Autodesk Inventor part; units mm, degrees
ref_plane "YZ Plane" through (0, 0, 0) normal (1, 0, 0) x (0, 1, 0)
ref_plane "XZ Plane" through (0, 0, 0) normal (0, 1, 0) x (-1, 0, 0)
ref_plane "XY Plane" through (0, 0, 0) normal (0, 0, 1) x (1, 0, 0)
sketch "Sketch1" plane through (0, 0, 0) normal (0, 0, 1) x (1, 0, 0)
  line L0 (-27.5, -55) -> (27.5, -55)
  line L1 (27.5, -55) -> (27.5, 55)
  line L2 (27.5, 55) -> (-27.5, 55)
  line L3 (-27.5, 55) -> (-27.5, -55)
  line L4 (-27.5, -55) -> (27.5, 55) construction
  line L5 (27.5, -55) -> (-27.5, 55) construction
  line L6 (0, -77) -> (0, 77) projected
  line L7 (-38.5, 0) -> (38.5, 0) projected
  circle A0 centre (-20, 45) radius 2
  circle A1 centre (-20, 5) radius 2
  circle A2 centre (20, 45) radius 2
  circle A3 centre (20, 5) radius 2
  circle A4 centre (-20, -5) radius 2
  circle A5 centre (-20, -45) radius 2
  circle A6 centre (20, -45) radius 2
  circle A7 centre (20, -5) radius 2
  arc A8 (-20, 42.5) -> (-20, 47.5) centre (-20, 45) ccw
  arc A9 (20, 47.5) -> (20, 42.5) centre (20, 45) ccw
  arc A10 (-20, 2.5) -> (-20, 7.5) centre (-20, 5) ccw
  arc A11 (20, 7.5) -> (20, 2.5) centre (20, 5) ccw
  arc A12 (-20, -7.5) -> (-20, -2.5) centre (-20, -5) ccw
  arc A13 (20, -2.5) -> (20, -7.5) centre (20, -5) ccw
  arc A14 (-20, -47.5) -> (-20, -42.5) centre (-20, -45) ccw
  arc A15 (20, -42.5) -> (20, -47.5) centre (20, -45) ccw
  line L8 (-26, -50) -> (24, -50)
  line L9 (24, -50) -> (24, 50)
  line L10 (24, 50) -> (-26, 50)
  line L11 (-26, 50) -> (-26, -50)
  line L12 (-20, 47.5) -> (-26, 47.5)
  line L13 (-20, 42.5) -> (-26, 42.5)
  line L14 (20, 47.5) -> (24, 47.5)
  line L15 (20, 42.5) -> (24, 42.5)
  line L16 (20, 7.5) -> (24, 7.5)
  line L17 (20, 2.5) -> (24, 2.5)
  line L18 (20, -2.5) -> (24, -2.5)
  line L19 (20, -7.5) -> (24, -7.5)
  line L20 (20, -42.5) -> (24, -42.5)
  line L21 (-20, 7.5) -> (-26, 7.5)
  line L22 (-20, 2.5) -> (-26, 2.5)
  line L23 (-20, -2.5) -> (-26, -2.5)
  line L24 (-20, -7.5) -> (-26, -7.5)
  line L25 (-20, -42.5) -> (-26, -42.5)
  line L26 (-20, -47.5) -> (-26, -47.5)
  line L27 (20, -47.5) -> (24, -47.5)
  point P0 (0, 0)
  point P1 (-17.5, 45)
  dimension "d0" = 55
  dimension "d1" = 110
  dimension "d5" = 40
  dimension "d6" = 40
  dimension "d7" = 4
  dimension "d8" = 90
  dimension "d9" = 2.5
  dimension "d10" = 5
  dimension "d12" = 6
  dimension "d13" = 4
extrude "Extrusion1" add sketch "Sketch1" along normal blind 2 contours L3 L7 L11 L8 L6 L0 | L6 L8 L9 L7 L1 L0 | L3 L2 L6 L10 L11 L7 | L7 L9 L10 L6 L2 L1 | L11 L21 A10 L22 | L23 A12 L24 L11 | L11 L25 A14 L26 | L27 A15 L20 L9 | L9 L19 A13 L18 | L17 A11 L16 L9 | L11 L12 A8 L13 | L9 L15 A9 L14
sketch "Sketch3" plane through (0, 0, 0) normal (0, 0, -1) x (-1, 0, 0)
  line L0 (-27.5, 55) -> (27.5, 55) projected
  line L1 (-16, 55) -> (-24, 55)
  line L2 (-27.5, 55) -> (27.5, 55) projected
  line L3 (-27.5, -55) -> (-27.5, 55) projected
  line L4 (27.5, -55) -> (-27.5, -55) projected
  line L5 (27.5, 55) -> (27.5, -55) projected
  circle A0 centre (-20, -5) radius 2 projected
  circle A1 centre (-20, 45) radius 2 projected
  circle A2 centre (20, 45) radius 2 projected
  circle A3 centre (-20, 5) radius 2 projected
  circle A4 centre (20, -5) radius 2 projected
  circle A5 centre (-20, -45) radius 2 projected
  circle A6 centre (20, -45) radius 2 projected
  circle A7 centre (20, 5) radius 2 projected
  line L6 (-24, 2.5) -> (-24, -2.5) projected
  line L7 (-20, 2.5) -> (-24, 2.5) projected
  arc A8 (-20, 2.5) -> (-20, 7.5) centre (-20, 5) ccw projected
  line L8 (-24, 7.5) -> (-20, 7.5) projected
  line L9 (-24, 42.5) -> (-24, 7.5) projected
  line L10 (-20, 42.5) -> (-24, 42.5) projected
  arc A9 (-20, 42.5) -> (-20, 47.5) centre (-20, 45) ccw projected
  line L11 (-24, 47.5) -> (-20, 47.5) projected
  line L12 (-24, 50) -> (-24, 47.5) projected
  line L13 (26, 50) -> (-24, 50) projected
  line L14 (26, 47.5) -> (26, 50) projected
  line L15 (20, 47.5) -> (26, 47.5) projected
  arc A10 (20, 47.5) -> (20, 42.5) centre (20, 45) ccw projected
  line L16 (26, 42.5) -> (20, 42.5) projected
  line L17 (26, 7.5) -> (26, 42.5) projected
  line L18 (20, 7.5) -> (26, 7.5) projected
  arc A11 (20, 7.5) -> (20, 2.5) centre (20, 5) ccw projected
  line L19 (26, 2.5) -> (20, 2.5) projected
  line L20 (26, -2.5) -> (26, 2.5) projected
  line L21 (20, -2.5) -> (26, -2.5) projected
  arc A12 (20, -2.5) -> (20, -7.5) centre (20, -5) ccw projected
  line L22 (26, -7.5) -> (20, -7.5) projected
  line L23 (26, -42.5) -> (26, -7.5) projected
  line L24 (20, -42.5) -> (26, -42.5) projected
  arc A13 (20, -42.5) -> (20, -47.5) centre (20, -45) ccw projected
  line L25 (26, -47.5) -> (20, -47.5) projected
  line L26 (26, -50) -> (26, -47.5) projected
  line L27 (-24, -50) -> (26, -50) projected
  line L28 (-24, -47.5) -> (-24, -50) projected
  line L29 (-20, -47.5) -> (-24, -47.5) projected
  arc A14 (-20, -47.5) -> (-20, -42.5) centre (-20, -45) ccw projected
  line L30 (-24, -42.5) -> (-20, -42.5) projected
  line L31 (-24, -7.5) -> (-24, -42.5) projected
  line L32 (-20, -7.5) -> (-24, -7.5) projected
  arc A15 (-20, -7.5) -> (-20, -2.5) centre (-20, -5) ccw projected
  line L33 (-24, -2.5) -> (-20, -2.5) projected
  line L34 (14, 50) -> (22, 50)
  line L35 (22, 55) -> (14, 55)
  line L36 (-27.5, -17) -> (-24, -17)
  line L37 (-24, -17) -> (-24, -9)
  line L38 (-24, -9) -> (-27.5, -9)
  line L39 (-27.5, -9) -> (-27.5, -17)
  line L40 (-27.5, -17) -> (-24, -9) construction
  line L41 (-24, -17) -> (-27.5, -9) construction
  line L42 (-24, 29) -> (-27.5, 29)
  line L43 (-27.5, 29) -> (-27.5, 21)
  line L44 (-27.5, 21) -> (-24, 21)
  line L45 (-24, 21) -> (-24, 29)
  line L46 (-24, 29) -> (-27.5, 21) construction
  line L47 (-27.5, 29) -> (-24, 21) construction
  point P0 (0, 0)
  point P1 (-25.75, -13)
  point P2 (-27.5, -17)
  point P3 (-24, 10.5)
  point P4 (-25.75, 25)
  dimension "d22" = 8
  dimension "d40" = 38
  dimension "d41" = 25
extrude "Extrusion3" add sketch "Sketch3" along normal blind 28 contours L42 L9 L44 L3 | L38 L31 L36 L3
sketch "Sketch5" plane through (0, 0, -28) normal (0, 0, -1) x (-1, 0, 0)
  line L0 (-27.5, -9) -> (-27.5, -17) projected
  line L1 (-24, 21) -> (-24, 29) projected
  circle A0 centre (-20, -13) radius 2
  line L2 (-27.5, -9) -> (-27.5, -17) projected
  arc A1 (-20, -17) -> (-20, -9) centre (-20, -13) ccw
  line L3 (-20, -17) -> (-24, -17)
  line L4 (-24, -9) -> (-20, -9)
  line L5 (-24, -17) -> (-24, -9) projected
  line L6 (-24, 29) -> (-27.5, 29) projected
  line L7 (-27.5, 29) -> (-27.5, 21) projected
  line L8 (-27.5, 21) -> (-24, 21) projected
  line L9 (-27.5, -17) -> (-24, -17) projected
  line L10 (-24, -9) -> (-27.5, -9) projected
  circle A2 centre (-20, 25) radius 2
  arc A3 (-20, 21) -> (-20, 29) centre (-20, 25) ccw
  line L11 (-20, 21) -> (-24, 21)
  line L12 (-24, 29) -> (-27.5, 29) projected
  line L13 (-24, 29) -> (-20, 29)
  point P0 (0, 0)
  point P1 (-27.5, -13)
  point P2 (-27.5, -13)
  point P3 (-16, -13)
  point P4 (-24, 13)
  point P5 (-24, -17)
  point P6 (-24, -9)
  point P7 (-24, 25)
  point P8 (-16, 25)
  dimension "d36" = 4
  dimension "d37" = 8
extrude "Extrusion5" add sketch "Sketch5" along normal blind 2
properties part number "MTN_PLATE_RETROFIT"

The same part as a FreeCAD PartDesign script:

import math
import FreeCAD as App
import Part
import Sketcher
from FreeCAD import Vector
Q = App.Units.Quantity


def add_polygon(sketch, points):
    """Adds a closed chain of lines whose ends are joined by coincident constraints."""
    first, n = sketch.GeometryCount, len(points)
    for a, b in zip(points, points[1:] + points[:1]):
        sketch.addGeometry(Part.LineSegment(App.Vector(*a, 0), App.Vector(*b, 0)), False)
    for i in range(n):
        sketch.addConstraint(Sketcher.Constraint("Coincident", first + i, 2, first + (i + 1) % n, 1))

doc = App.newDocument("Part")
params = doc.addObject("Spreadsheet::Sheet", "Params")
for row, (alias, value) in enumerate([
    ("sketch1_diameter", "4 mm"),
    ("sketch1_radius", "2.5 mm"),
    ("sketch1_width", "55 mm"),
    ("sketch1_width2", "6 mm"),
    ("sketch1_width3", "4 mm"),
    ("pad1_length", "2 mm"),
    ("sketch2_height", "8 mm"),
    ("sketch2_width", "3.5 mm"),
    ("pad2_length", "28 mm"),
    ("sketch3_diameter", "4 mm"),
    ("sketch3_radius", "4 mm"),
    ("sketch3_width", "7.5 mm"),
    ("pad3_length", "2 mm"),
], start=1):
    params.set(f"A{row}", alias)
    params.set(f"B{row}", "=" + value)
    params.setAlias(f"B{row}", alias)

body = doc.addObject("PartDesign::Body", "Body")

# Sketch on XY plane
sketch1 = body.newObject("Sketcher::SketchObject", "Sketch")
sketch1.AttachmentSupport = (doc.getObject("XY_Plane"), [""])
sketch1.MapMode = "FlatFace"
add_polygon(sketch1, [(-27.5, -55), (27.5, -55), (27.5, 55), (-27.5, 55)])  # lines 0-3
sketch1.addGeometry(Part.LineSegment(Vector(-26, -2.5, 0), Vector(-26, 2.5, 0)), False)  # 4
sketch1.addGeometry(Part.LineSegment(Vector(-26, 2.5, 0), Vector(-20, 2.5, 0)), False)  # 5
sketch1.addGeometry(Part.ArcOfCircle(Part.Circle(Vector(-20, 5, 0), Vector(0, 0, 1), 2.5), math.radians(-90), math.radians(90)), False)  # 6
sketch1.addGeometry(Part.LineSegment(Vector(-20, 7.5, 0), Vector(-26, 7.5, 0)), False)  # 7
sketch1.addGeometry(Part.LineSegment(Vector(-26, 7.5, 0), Vector(-26, 42.5, 0)), False)  # 8
sketch1.addGeometry(Part.LineSegment(Vector(-26, 42.5, 0), Vector(-20, 42.5, 0)), False)  # 9
sketch1.addGeometry(Part.ArcOfCircle(Part.Circle(Vector(-20, 45, 0), Vector(0, 0, 1), 2.5), math.radians(-90), math.radians(90)), False)  # 10
sketch1.addGeometry(Part.LineSegment(Vector(-20, 47.5, 0), Vector(-26, 47.5, 0)), False)  # 11
sketch1.addGeometry(Part.LineSegment(Vector(-26, 47.5, 0), Vector(-26, 50, 0)), False)  # 12
sketch1.addGeometry(Part.LineSegment(Vector(-26, 50, 0), Vector(24, 50, 0)), False)  # 13
sketch1.addGeometry(Part.LineSegment(Vector(24, 50, 0), Vector(24, 47.5, 0)), False)  # 14
sketch1.addGeometry(Part.LineSegment(Vector(24, 47.5, 0), Vector(20, 47.5, 0)), False)  # 15
sketch1.addGeometry(Part.ArcOfCircle(Part.Circle(Vector(20, 45, 0), Vector(0, 0, 1), 2.5), math.radians(90), math.radians(270)), False)  # 16
sketch1.addGeometry(Part.LineSegment(Vector(20, 42.5, 0), Vector(24, 42.5, 0)), False)  # 17
sketch1.addGeometry(Part.LineSegment(Vector(24, 42.5, 0), Vector(24, 7.5, 0)), False)  # 18
sketch1.addGeometry(Part.LineSegment(Vector(24, 7.5, 0), Vector(20, 7.5, 0)), False)  # 19
sketch1.addGeometry(Part.ArcOfCircle(Part.Circle(Vector(20, 5, 0), Vector(0, 0, 1), 2.5), math.radians(90), math.radians(270)), False)  # 20
sketch1.addGeometry(Part.LineSegment(Vector(20, 2.5, 0), Vector(24, 2.5, 0)), False)  # 21
sketch1.addGeometry(Part.LineSegment(Vector(24, 2.5, 0), Vector(24, -2.5, 0)), False)  # 22
sketch1.addGeometry(Part.LineSegment(Vector(24, -2.5, 0), Vector(20, -2.5, 0)), False)  # 23
sketch1.addGeometry(Part.ArcOfCircle(Part.Circle(Vector(20, -5, 0), Vector(0, 0, 1), 2.5), math.radians(90), math.radians(270)), False)  # 24
sketch1.addGeometry(Part.LineSegment(Vector(20, -7.5, 0), Vector(24, -7.5, 0)), False)  # 25
sketch1.addGeometry(Part.LineSegment(Vector(24, -7.5, 0), Vector(24, -42.5, 0)), False)  # 26
sketch1.addGeometry(Part.LineSegment(Vector(24, -42.5, 0), Vector(20, -42.5, 0)), False)  # 27
sketch1.addGeometry(Part.ArcOfCircle(Part.Circle(Vector(20, -45, 0), Vector(0, 0, 1), 2.5), math.radians(90), math.radians(270)), False)  # 28
sketch1.addGeometry(Part.LineSegment(Vector(20, -47.5, 0), Vector(24, -47.5, 0)), False)  # 29
sketch1.addGeometry(Part.LineSegment(Vector(24, -47.5, 0), Vector(24, -50, 0)), False)  # 30
sketch1.addGeometry(Part.LineSegment(Vector(24, -50, 0), Vector(-26, -50, 0)), False)  # 31
sketch1.addGeometry(Part.LineSegment(Vector(-26, -50, 0), Vector(-26, -47.5, 0)), False)  # 32
sketch1.addGeometry(Part.LineSegment(Vector(-26, -47.5, 0), Vector(-20, -47.5, 0)), False)  # 33
sketch1.addGeometry(Part.ArcOfCircle(Part.Circle(Vector(-20, -45, 0), Vector(0, 0, 1), 2.5), math.radians(-90), math.radians(90)), False)  # 34
sketch1.addGeometry(Part.LineSegment(Vector(-20, -42.5, 0), Vector(-26, -42.5, 0)), False)  # 35
sketch1.addGeometry(Part.LineSegment(Vector(-26, -42.5, 0), Vector(-26, -7.5, 0)), False)  # 36
sketch1.addGeometry(Part.LineSegment(Vector(-26, -7.5, 0), Vector(-20, -7.5, 0)), False)  # 37
sketch1.addGeometry(Part.ArcOfCircle(Part.Circle(Vector(-20, -5, 0), Vector(0, 0, 1), 2.5), math.radians(-90), math.radians(90)), False)  # 38
sketch1.addGeometry(Part.LineSegment(Vector(-20, -2.5, 0), Vector(-26, -2.5, 0)), False)  # 39
sketch1.addGeometry(Part.Circle(Vector(-20, -5, 0), Vector(0, 0, 1), 2), False)  # 40
sketch1.addGeometry(Part.Circle(Vector(-20, -45, 0), Vector(0, 0, 1), 2), False)  # 41
sketch1.addGeometry(Part.Circle(Vector(-20, 45, 0), Vector(0, 0, 1), 2), False)  # 42
sketch1.addGeometry(Part.Circle(Vector(-20, 5, 0), Vector(0, 0, 1), 2), False)  # 43
sketch1.addGeometry(Part.Circle(Vector(20, -45, 0), Vector(0, 0, 1), 2), False)  # 44
sketch1.addGeometry(Part.Circle(Vector(20, -5, 0), Vector(0, 0, 1), 2), False)  # 45
sketch1.addGeometry(Part.Circle(Vector(20, 5, 0), Vector(0, 0, 1), 2), False)  # 46
sketch1.addGeometry(Part.Circle(Vector(20, 45, 0), Vector(0, 0, 1), 2), False)  # 47
sketch1.addConstraint([
    Sketcher.Constraint("Coincident", 4, 2, 5, 1),
    Sketcher.Constraint("Tangent", 5, 2, 6, 1),
    Sketcher.Constraint("Tangent", 6, 2, 7, 1),
    Sketcher.Constraint("Coincident", 7, 2, 8, 1),
    Sketcher.Constraint("Coincident", 8, 2, 9, 1),
    Sketcher.Constraint("Tangent", 9, 2, 10, 1),
    Sketcher.Constraint("Tangent", 10, 2, 11, 1),
    Sketcher.Constraint("Coincident", 11, 2, 12, 1),
    Sketcher.Constraint("Coincident", 12, 2, 13, 1),
    Sketcher.Constraint("Coincident", 13, 2, 14, 1),
    Sketcher.Constraint("Coincident", 14, 2, 15, 1),
    Sketcher.Constraint("Tangent", 15, 2, 16, 1),
    Sketcher.Constraint("Tangent", 16, 2, 17, 1),
    Sketcher.Constraint("Coincident", 17, 2, 18, 1),
    Sketcher.Constraint("Coincident", 18, 2, 19, 1),
    Sketcher.Constraint("Tangent", 19, 2, 20, 1),
    Sketcher.Constraint("Tangent", 20, 2, 21, 1),
    Sketcher.Constraint("Coincident", 21, 2, 22, 1),
    Sketcher.Constraint("Coincident", 22, 2, 23, 1),
    Sketcher.Constraint("Tangent", 23, 2, 24, 1),
    Sketcher.Constraint("Tangent", 24, 2, 25, 1),
    Sketcher.Constraint("Coincident", 25, 2, 26, 1),
    Sketcher.Constraint("Coincident", 26, 2, 27, 1),
    Sketcher.Constraint("Tangent", 27, 2, 28, 1),
    Sketcher.Constraint("Tangent", 28, 2, 29, 1),
    Sketcher.Constraint("Coincident", 29, 2, 30, 1),
    Sketcher.Constraint("Coincident", 30, 2, 31, 1),
    Sketcher.Constraint("Coincident", 31, 2, 32, 1),
    Sketcher.Constraint("Coincident", 32, 2, 33, 1),
    Sketcher.Constraint("Tangent", 33, 2, 34, 1),
    Sketcher.Constraint("Tangent", 34, 2, 35, 1),
    Sketcher.Constraint("Coincident", 35, 2, 36, 1),
    Sketcher.Constraint("Coincident", 36, 2, 37, 1),
    Sketcher.Constraint("Tangent", 37, 2, 38, 1),
    Sketcher.Constraint("Tangent", 38, 2, 39, 1),
    Sketcher.Constraint("Coincident", 39, 2, 4, 1),
    Sketcher.Constraint("Horizontal", 0),
    Sketcher.Constraint("Vertical", 1),
    Sketcher.Constraint("Horizontal", 2),
    Sketcher.Constraint("Vertical", 3),
    Sketcher.Constraint("Vertical", 4),
    Sketcher.Constraint("Horizontal", 5),
    Sketcher.Constraint("Horizontal", 7),
    Sketcher.Constraint("Vertical", 8),
    Sketcher.Constraint("Horizontal", 9),
    Sketcher.Constraint("Horizontal", 11),
    Sketcher.Constraint("Vertical", 12),
    Sketcher.Constraint("Horizontal", 13),
    Sketcher.Constraint("Vertical", 14),
    Sketcher.Constraint("Horizontal", 15),
    Sketcher.Constraint("Horizontal", 17),
    Sketcher.Constraint("Vertical", 18),
    Sketcher.Constraint("Horizontal", 19),
    Sketcher.Constraint("Horizontal", 21),
    Sketcher.Constraint("Vertical", 22),
    Sketcher.Constraint("Horizontal", 23),
    Sketcher.Constraint("Horizontal", 25),
    Sketcher.Constraint("Vertical", 26),
    Sketcher.Constraint("Horizontal", 27),
    Sketcher.Constraint("Horizontal", 29),
    Sketcher.Constraint("Vertical", 30),
    Sketcher.Constraint("Horizontal", 31),
    Sketcher.Constraint("Vertical", 32),
    Sketcher.Constraint("Horizontal", 33),
    Sketcher.Constraint("Horizontal", 35),
    Sketcher.Constraint("Vertical", 36),
    Sketcher.Constraint("Horizontal", 37),
    Sketcher.Constraint("Horizontal", 39),
    Sketcher.Constraint("Coincident", 40, 3, 38, 3),
    Sketcher.Constraint("Coincident", 41, 3, 34, 3),
    Sketcher.Constraint("Coincident", 42, 3, 10, 3),
    Sketcher.Constraint("Coincident", 43, 3, 6, 3),
    Sketcher.Constraint("Coincident", 44, 3, 28, 3),
    Sketcher.Constraint("Coincident", 45, 3, 24, 3),
    Sketcher.Constraint("Coincident", 46, 3, 20, 3),
    Sketcher.Constraint("Coincident", 47, 3, 16, 3),
    Sketcher.Constraint("Equal", 6, 10),
    Sketcher.Constraint("Equal", 10, 16),
    Sketcher.Constraint("Equal", 16, 20),
    Sketcher.Constraint("Equal", 20, 24),
    Sketcher.Constraint("Equal", 24, 28),
    Sketcher.Constraint("Equal", 28, 34),
    Sketcher.Constraint("Equal", 34, 38),
    Sketcher.Constraint("Equal", 40, 41),
    Sketcher.Constraint("Equal", 41, 42),
    Sketcher.Constraint("Equal", 42, 43),
    Sketcher.Constraint("Equal", 43, 44),
    Sketcher.Constraint("Equal", 44, 45),
    Sketcher.Constraint("Equal", 45, 46),
    Sketcher.Constraint("Equal", 46, 47),
    Sketcher.Constraint("Symmetric", 6, 3, 24, 3, -1, 1),
    Sketcher.Constraint("Symmetric", 10, 3, 28, 3, -1, 1),
    Sketcher.Constraint("Symmetric", 16, 3, 34, 3, -1, 1),
    Sketcher.Constraint("Symmetric", 20, 3, 38, 3, -1, 1),
    Sketcher.Constraint("Symmetric", 0, 2, 2, 2, -1, 1),
    Sketcher.Constraint("Symmetric", 10, 3, 16, 3, -2),
    Sketcher.Constraint("Symmetric", 6, 3, 20, 3, -2),
    Sketcher.Constraint("Symmetric", 13, 2, 30, 2, -1),
    Sketcher.Constraint("Vertical", 6, 3, 10, 3),
    Sketcher.Constraint("Vertical", 4, 2, 7, 2),
    Sketcher.Constraint("Vertical", 8, 2, 11, 2),
    Sketcher.Constraint("Vertical", 14, 2, 17, 2),
    Sketcher.Constraint("Vertical", 18, 2, 21, 2),
    Sketcher.Constraint("Vertical", 22, 2, 25, 2),
    Sketcher.Constraint("Vertical", 12, 2, 31, 2),
    Sketcher.Constraint("Vertical", 32, 2, 35, 2),
    Sketcher.Constraint("Diameter", 40, Q("4 mm")),
    Sketcher.Constraint("Radius", 6, Q("2.5 mm")),
    Sketcher.Constraint("DistanceX", 0, 1, 0, 2, Q("55 mm")),
    Sketcher.Constraint("DistanceX", 5, 1, 5, 2, Q("6 mm")),
    Sketcher.Constraint("DistanceX", 15, 2, 15, 1, Q("4 mm")),
    Sketcher.Constraint("DistanceY", 1, 1, 1, 2, Q("110 mm")),
    Sketcher.Constraint("DistanceY", 4, 1, 4, 2, Q("5 mm")),
    Sketcher.Constraint("DistanceY", 12, 1, 12, 2, Q("2.5 mm")),
    Sketcher.Constraint("DistanceY", 6, 3, 10, 3, Q("40 mm")),
    Sketcher.Constraint("DistanceX", 10, 3, 16, 3, Q("40 mm")),
])
sketch1.setExpression("Constraints[110]", "Params.sketch1_diameter")
sketch1.setExpression("Constraints[111]", "Params.sketch1_radius")
sketch1.setExpression("Constraints[112]", "Params.sketch1_width")
sketch1.setExpression("Constraints[113]", "Params.sketch1_width2")
sketch1.setExpression("Constraints[114]", "Params.sketch1_width3")
pad1 = body.newObject("PartDesign::Pad", "Pad")
pad1.Profile = sketch1
pad1.setExpression("Length", "Params.pad1_length")

# Sketch on XY plane
sketch2 = body.newObject("Sketcher::SketchObject", "Sketch001")
sketch2.AttachmentSupport = (doc.getObject("XY_Plane"), [""])
sketch2.MapMode = "FlatFace"
add_polygon(sketch2, [(24, 29), (27.5, 29), (27.5, 21), (24, 21)])  # lines 0-3
add_polygon(sketch2, [(24, -9), (27.5, -9), (27.5, -17), (24, -17)])  # lines 4-7
sketch2.addConstraint([
    Sketcher.Constraint("Horizontal", 0),
    Sketcher.Constraint("Vertical", 1),
    Sketcher.Constraint("Horizontal", 2),
    Sketcher.Constraint("Vertical", 3),
    Sketcher.Constraint("Horizontal", 4),
    Sketcher.Constraint("Vertical", 5),
    Sketcher.Constraint("Horizontal", 6),
    Sketcher.Constraint("Vertical", 7),
    Sketcher.Constraint("Vertical", 1, 2, 4, 2),
    Sketcher.Constraint("Vertical", 3, 2, 6, 2),
    Sketcher.Constraint("Equal", 3, 5),
    Sketcher.Constraint("DistanceY", 1, 2, 1, 1, Q("8 mm")),
    Sketcher.Constraint("DistanceY", 4, 2, 0, 2, Q("38 mm")),
    Sketcher.Constraint("DistanceX", 0, 1, 0, 2, Q("3.5 mm")),
    Sketcher.Constraint("DistanceY", -1, 1, 0, 2, Q("29 mm")),
    Sketcher.Constraint("DistanceX", -1, 1, 2, 2, Q("24 mm")),
])
sketch2.setExpression("Constraints[19]", "Params.sketch2_height")
sketch2.setExpression("Constraints[21]", "Params.sketch2_width")
pad2 = body.newObject("PartDesign::Pad", "Pad001")
pad2.Profile = sketch2
pad2.setExpression("Length", "Params.pad2_length")
pad2.Reversed = True

# Sketch on XY plane
sketch3 = body.newObject("Sketcher::SketchObject", "Sketch002")
sketch3.AttachmentSupport = (doc.getObject("XY_Plane"), [""])
sketch3.MapMode = "FlatFace"
sketch3.AttachmentOffset = App.Placement(Vector(0, 0, -28), App.Rotation())
sketch3.addGeometry([
    Part.LineSegment(Vector(27.5, -9, 0), Vector(27.5, -17, 0)),  # 0
    Part.LineSegment(Vector(27.5, -17, 0), Vector(20, -17, 0)),  # 1
    Part.ArcOfCircle(Part.Circle(Vector(20, -13, 0), Vector(0, 0, 1), 4), math.radians(90), math.radians(270)),  # 2
    Part.LineSegment(Vector(20, -9, 0), Vector(27.5, -9, 0)),  # 3
    Part.Circle(Vector(20, -13, 0), Vector(0, 0, 1), 2),  # 4
    Part.LineSegment(Vector(27.5, 21, 0), Vector(20, 21, 0)),  # 5
    Part.ArcOfCircle(Part.Circle(Vector(20, 25, 0), Vector(0, 0, 1), 4), math.radians(90), math.radians(270)),  # 6
    Part.LineSegment(Vector(20, 29, 0), Vector(27.5, 29, 0)),  # 7
    Part.LineSegment(Vector(27.5, 29, 0), Vector(27.5, 21, 0)),  # 8
    Part.Circle(Vector(20, 25, 0), Vector(0, 0, 1), 2),  # 9
], False)
sketch3.addConstraint([
    Sketcher.Constraint("Coincident", 0, 2, 1, 1),
    Sketcher.Constraint("Tangent", 1, 2, 2, 2),
    Sketcher.Constraint("Tangent", 2, 1, 3, 1),
    Sketcher.Constraint("Coincident", 3, 2, 0, 1),
    Sketcher.Constraint("Tangent", 5, 2, 6, 2),
    Sketcher.Constraint("Tangent", 6, 1, 7, 1),
    Sketcher.Constraint("Coincident", 7, 2, 8, 1),
    Sketcher.Constraint("Coincident", 8, 2, 5, 1),
    Sketcher.Constraint("Vertical", 0),
    Sketcher.Constraint("Horizontal", 1),
    Sketcher.Constraint("Horizontal", 3),
    Sketcher.Constraint("Horizontal", 5),
    Sketcher.Constraint("Horizontal", 7),
    Sketcher.Constraint("Vertical", 8),
    Sketcher.Constraint("Coincident", 4, 3, 2, 3),
    Sketcher.Constraint("Coincident", 9, 3, 6, 3),
    Sketcher.Constraint("Equal", 2, 6),
    Sketcher.Constraint("Equal", 4, 9),
    Sketcher.Constraint("Vertical", 4, 3, 6, 3),
    Sketcher.Constraint("Vertical", 3, 2, 7, 2),
    Sketcher.Constraint("Diameter", 4, Q("4 mm")),
    Sketcher.Constraint("Radius", 2, Q("4 mm")),
    Sketcher.Constraint("DistanceX", 1, 2, 1, 1, Q("7.5 mm")),
    Sketcher.Constraint("DistanceX", -1, 1, 2, 3, Q("20 mm")),
    Sketcher.Constraint("DistanceY", 2, 3, -1, 1, Q("13 mm")),
    Sketcher.Constraint("DistanceY", -1, 1, 6, 3, Q("25 mm")),
])
sketch3.setExpression("Constraints[20]", "Params.sketch3_diameter")
sketch3.setExpression("Constraints[21]", "Params.sketch3_radius")
sketch3.setExpression("Constraints[22]", "Params.sketch3_width")
pad3 = body.newObject("PartDesign::Pad", "Pad002")
pad3.Profile = sketch3
pad3.setExpression("Length", "Params.pad3_length")
pad3.Reversed = True

doc.recompute()
